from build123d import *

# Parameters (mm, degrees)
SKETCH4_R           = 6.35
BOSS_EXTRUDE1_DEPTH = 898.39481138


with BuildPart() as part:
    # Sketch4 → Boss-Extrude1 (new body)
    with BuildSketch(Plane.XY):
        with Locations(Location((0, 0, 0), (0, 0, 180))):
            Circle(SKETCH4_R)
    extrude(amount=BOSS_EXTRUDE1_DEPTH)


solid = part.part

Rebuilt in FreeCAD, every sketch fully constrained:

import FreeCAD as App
import Part
import Sketcher
from FreeCAD import Vector
Q = App.Units.Quantity

doc = App.newDocument("Part")
body = doc.addObject("PartDesign::Body", "Body")

# Sketch on XY plane
sketch1 = body.newObject("Sketcher::SketchObject", "Sketch")
sketch1.AttachmentSupport = (doc.getObject("XY_Plane"), [""])
sketch1.MapMode = "FlatFace"
sketch1.addGeometry(Part.Circle(Vector(0, 0, 0), Vector(0, 0, 1), 6), False)
sketch1.addConstraint(Sketcher.Constraint("Coincident", 0, 3, -1, 1))
sketch1.addConstraint(Sketcher.Constraint("Diameter", 0, Q("0.5 in")))
pad1 = body.newObject("PartDesign::Pad", "Pad")
pad1.Profile = sketch1
pad1.Length = 898.394811

doc.recompute()
